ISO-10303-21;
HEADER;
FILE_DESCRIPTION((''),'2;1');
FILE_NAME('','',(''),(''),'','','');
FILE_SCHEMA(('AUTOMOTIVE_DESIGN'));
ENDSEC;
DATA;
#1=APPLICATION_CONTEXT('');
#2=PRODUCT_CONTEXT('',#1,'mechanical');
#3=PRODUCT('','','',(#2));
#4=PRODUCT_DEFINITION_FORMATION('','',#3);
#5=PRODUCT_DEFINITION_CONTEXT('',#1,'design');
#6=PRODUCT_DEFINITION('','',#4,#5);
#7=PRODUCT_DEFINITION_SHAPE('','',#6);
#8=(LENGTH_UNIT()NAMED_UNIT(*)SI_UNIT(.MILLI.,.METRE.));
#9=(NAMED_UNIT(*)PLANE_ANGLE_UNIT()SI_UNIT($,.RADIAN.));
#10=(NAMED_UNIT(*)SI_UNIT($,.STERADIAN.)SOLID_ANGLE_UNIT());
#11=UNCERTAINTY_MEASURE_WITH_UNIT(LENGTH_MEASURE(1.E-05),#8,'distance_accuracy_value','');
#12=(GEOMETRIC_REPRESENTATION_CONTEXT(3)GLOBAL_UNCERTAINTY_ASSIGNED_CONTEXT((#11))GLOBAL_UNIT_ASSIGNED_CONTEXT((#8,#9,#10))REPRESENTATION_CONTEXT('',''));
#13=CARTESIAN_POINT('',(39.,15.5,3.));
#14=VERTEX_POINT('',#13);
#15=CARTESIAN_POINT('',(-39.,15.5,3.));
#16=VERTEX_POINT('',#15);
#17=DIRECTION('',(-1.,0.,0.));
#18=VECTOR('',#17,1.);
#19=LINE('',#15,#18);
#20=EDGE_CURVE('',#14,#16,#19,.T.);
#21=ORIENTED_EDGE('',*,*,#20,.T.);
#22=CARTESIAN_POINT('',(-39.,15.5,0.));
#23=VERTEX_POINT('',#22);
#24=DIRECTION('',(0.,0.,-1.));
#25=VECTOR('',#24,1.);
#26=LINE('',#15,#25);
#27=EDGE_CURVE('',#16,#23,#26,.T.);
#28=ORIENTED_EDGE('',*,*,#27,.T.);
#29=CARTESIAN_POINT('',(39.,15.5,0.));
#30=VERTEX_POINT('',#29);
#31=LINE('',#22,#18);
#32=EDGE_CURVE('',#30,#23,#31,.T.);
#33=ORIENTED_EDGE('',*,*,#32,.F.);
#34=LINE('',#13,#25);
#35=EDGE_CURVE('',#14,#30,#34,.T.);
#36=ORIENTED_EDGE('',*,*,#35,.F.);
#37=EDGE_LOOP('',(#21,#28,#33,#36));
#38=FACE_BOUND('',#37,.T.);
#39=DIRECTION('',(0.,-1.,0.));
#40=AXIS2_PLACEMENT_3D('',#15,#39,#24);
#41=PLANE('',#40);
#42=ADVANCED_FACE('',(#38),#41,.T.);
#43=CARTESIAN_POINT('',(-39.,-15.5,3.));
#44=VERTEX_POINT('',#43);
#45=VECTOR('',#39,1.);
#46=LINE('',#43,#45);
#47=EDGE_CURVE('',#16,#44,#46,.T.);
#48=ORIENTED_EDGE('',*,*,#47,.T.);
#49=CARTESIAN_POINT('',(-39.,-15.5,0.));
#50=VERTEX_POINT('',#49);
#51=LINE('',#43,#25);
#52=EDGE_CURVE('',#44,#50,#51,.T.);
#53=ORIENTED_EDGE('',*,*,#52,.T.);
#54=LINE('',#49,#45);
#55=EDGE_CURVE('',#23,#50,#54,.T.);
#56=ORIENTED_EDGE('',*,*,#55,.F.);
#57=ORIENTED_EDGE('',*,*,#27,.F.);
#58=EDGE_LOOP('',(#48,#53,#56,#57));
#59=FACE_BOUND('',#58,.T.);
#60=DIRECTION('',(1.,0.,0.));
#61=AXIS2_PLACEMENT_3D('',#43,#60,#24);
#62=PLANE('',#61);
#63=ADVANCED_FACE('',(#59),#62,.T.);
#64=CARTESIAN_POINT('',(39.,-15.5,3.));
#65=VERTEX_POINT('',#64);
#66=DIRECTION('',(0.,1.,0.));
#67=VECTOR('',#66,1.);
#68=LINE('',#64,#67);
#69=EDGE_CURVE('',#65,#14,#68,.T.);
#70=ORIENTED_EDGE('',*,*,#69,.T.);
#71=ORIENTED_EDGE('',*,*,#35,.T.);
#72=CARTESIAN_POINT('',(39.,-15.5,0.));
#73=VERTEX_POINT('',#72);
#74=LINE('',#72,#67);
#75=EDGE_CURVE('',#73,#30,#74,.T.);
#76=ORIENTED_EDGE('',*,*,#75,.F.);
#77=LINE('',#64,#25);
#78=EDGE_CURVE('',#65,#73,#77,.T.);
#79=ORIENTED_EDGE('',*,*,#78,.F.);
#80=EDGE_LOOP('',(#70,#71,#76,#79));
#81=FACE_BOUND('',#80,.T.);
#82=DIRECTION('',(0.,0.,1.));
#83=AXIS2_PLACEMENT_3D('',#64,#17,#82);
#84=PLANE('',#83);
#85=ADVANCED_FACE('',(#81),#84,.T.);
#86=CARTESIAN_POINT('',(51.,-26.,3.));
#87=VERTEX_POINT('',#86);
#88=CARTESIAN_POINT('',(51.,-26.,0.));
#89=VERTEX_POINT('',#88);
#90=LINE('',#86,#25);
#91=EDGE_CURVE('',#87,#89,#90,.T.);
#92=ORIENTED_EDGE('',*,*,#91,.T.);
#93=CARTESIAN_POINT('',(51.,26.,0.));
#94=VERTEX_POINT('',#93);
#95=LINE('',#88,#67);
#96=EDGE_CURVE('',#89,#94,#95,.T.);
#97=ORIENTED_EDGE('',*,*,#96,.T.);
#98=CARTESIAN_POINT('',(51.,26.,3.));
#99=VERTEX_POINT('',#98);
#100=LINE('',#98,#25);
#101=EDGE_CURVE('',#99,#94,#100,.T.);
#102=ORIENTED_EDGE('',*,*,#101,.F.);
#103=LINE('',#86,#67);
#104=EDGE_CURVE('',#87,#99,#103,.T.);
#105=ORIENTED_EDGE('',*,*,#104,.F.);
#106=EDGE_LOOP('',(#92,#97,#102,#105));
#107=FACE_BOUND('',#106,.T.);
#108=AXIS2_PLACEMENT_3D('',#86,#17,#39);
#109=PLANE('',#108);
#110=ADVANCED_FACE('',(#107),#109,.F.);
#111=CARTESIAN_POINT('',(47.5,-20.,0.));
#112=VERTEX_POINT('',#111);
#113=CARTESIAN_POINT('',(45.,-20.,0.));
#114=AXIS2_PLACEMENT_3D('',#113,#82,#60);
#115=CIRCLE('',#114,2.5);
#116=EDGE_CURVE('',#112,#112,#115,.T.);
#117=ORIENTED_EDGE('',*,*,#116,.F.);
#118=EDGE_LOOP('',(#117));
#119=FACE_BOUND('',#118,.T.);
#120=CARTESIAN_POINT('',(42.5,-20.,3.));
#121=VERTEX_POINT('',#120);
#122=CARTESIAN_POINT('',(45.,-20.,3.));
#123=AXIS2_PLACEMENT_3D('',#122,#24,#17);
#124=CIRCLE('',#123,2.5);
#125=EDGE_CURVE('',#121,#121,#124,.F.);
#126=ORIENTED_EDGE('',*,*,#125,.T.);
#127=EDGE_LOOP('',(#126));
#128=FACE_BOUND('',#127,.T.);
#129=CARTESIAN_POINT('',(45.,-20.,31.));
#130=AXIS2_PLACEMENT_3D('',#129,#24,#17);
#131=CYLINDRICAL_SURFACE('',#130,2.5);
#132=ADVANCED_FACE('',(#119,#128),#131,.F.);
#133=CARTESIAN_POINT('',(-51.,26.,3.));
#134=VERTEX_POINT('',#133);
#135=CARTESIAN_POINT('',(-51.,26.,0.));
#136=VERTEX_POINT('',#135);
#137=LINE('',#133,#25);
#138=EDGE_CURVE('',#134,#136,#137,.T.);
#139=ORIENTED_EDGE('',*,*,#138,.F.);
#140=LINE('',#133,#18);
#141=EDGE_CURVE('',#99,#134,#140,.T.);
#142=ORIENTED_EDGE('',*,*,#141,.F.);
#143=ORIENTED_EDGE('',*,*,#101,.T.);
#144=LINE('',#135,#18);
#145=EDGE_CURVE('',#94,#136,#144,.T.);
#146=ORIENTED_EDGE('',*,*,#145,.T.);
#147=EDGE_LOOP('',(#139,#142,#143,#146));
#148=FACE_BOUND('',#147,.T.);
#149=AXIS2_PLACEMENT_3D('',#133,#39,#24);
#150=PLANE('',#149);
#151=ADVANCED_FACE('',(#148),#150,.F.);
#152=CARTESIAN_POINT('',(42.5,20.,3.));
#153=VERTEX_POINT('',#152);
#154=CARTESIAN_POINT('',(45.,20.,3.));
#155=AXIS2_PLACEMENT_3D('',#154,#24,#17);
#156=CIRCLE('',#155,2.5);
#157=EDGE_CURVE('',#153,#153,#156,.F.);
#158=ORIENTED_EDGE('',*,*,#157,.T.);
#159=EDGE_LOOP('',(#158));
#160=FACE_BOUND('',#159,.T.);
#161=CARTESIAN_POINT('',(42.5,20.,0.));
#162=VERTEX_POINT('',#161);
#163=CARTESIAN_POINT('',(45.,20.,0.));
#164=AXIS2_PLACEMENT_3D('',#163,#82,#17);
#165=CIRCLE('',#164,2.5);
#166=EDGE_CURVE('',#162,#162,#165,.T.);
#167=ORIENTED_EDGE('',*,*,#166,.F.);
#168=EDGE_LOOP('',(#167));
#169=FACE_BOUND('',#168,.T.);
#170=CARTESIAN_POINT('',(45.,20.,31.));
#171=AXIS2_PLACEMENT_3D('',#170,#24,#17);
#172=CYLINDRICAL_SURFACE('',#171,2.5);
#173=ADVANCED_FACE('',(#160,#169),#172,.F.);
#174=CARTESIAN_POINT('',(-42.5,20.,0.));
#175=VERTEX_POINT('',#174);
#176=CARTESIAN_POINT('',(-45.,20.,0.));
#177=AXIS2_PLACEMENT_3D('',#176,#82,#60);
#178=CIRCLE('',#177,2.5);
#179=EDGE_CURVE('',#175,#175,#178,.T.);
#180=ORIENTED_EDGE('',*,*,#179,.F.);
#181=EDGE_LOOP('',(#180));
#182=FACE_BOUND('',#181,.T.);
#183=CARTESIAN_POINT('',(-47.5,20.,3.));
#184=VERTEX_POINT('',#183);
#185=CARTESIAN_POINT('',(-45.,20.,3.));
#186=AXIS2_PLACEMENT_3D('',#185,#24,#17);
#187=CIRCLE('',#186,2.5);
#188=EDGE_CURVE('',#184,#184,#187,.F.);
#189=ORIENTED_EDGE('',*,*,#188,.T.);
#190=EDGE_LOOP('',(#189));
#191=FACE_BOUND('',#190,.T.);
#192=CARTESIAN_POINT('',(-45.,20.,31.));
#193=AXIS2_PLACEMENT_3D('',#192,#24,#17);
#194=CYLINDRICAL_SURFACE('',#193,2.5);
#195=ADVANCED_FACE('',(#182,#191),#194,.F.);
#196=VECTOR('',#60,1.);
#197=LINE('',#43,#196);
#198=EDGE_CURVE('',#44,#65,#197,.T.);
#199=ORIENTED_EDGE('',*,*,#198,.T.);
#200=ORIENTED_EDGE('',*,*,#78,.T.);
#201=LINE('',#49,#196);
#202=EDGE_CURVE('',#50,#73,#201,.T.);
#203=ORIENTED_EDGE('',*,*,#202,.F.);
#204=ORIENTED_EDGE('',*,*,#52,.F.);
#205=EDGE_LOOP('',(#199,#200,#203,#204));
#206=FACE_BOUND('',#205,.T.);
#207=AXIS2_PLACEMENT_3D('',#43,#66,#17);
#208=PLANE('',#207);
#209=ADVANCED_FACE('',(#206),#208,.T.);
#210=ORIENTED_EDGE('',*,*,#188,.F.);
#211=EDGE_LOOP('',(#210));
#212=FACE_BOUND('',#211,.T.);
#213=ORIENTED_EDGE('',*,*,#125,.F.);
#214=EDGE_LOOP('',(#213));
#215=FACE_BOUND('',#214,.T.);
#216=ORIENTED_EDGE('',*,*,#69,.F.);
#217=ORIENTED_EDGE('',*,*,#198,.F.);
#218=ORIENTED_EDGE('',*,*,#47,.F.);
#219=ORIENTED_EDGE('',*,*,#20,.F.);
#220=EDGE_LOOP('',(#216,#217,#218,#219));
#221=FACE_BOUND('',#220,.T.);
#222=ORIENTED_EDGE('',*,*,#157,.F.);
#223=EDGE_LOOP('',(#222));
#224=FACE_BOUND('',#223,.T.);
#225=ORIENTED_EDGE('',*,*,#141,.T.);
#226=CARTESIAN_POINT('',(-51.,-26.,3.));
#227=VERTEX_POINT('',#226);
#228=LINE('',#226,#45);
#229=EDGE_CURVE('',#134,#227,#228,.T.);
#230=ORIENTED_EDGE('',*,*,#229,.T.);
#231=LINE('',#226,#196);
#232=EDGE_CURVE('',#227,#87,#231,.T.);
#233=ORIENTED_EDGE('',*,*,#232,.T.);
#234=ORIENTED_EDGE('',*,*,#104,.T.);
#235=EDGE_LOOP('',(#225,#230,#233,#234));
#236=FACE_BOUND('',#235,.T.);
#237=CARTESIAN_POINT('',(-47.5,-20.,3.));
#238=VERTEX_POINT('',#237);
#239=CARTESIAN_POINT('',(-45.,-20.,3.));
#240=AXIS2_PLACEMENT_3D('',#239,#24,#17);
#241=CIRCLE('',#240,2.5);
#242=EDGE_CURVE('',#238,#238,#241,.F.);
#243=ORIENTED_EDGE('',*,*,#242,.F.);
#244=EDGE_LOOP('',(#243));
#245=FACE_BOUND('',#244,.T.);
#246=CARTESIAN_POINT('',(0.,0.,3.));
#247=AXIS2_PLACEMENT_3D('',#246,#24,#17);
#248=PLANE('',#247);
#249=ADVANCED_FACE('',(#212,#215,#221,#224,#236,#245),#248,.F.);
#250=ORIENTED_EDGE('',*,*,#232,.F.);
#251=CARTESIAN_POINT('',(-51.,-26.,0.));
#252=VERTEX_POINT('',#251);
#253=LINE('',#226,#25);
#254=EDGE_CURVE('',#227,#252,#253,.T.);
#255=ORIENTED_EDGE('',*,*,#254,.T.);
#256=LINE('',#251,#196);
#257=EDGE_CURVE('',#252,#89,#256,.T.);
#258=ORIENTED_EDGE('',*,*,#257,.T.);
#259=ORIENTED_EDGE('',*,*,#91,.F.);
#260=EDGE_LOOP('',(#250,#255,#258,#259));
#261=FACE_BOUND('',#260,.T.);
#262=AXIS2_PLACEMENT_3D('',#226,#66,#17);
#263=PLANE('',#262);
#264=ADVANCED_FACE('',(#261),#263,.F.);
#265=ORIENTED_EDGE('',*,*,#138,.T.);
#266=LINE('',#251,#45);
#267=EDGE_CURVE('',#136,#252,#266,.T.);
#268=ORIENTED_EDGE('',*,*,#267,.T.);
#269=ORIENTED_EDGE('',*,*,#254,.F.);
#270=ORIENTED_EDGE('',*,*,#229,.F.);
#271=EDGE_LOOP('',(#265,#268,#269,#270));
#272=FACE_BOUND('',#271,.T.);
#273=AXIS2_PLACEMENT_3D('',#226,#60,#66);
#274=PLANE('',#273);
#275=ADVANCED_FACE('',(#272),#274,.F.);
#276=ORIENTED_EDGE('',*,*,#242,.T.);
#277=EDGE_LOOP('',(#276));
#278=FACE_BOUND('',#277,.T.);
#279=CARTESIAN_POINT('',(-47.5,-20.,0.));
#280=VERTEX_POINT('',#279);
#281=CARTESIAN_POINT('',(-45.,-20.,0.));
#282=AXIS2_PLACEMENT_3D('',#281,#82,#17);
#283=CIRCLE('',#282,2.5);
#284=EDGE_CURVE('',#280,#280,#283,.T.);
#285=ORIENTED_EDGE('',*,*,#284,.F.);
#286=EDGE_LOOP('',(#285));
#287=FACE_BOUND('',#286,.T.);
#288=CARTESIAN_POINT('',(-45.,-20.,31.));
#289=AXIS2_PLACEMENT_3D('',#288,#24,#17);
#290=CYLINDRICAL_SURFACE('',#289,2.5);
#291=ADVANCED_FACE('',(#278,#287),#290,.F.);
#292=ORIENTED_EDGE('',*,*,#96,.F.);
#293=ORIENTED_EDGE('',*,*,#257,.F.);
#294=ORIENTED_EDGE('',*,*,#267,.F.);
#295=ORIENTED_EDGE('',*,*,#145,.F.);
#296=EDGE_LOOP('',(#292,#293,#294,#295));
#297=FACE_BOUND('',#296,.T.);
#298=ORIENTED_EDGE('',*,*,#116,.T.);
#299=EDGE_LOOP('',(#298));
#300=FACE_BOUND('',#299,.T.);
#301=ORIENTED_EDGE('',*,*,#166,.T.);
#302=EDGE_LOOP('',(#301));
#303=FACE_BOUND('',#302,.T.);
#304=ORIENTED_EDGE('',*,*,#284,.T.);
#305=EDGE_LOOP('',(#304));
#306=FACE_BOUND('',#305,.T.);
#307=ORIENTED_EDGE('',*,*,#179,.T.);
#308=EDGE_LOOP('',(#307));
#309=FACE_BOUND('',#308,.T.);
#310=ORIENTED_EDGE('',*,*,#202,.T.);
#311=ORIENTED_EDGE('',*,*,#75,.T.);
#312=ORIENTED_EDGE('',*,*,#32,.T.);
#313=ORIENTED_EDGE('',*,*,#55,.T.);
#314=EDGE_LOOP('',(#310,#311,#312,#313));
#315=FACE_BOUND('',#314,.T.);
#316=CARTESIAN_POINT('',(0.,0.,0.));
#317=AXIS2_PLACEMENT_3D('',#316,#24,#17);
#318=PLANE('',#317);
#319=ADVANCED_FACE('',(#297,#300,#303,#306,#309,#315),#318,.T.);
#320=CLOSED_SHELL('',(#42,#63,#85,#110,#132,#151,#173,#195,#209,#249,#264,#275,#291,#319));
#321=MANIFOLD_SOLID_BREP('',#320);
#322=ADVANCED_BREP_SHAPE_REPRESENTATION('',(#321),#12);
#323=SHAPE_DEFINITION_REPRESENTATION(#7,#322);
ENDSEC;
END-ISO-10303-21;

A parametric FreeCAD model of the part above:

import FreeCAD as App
import Part
import Sketcher
Q = App.Units.Quantity

doc = App.newDocument("Part")
body = doc.addObject("PartDesign::Body", "Body")

# Sketch on XY plane
sketch1 = doc.addObject("Sketcher::SketchObject", "Sketch")
body.addObject(sketch1)
sketch1.AttachmentSupport = (doc.XY_Plane, [""])
sketch1.MapMode = "FlatFace"
sketch1.addGeometry(Part.LineSegment(App.Vector(-51, 26, 0), App.Vector(-51, -26, 0)), False)
sketch1.addGeometry(Part.LineSegment(App.Vector(-51, -26, 0), App.Vector(51, -26, 0)), False)
sketch1.addGeometry(Part.LineSegment(App.Vector(51, -26, 0), App.Vector(51, 26, 0)), False)
sketch1.addGeometry(Part.LineSegment(App.Vector(51, 26, 0), App.Vector(-51, 26, 0)), False)
sketch1.addGeometry(Part.LineSegment(App.Vector(39, -15.5, 0), App.Vector(-39, -15.5, 0)), False)
sketch1.addGeometry(Part.LineSegment(App.Vector(-39, -15.5, 0), App.Vector(-39, 15.5, 0)), False)
sketch1.addGeometry(Part.LineSegment(App.Vector(-39, 15.5, 0), App.Vector(39, 15.5, 0)), False)
sketch1.addGeometry(Part.LineSegment(App.Vector(39, 15.5, 0), App.Vector(39, -15.5, 0)), False)
sketch1.addConstraint(Sketcher.Constraint("Coincident", 0, 2, 1, 1))
sketch1.addConstraint(Sketcher.Constraint("Coincident", 1, 2, 2, 1))
sketch1.addConstraint(Sketcher.Constraint("Coincident", 2, 2, 3, 1))
sketch1.addConstraint(Sketcher.Constraint("Coincident", 3, 2, 0, 1))
sketch1.addConstraint(Sketcher.Constraint("Coincident", 4, 2, 5, 1))
sketch1.addConstraint(Sketcher.Constraint("Coincident", 5, 2, 6, 1))
sketch1.addConstraint(Sketcher.Constraint("Coincident", 6, 2, 7, 1))
sketch1.addConstraint(Sketcher.Constraint("Coincident", 7, 2, 4, 1))
sketch1.addConstraint(Sketcher.Constraint("Vertical", 0))
sketch1.addConstraint(Sketcher.Constraint("Horizontal", 1))
sketch1.addConstraint(Sketcher.Constraint("Vertical", 2))
sketch1.addConstraint(Sketcher.Constraint("Horizontal", 3))
sketch1.addConstraint(Sketcher.Constraint("Horizontal", 4))
sketch1.addConstraint(Sketcher.Constraint("Vertical", 5))
sketch1.addConstraint(Sketcher.Constraint("Horizontal", 6))
sketch1.addConstraint(Sketcher.Constraint("Vertical", 7))
sketch1.addConstraint(Sketcher.Constraint("Symmetric", 0, 2, 2, 2, -1, 1))
sketch1.addConstraint(Sketcher.Constraint("Symmetric", 4, 2, 6, 2, -1, 1))
sketch1.addConstraint(Sketcher.Constraint("DistanceX", 1, 1, 1, 2, Q("102 mm")))
sketch1.addConstraint(Sketcher.Constraint("DistanceX", 4, 2, 4, 1, Q("78 mm")))
sketch1.addConstraint(Sketcher.Constraint("DistanceY", 0, 2, 0, 1, Q("52 mm")))
sketch1.addConstraint(Sketcher.Constraint("DistanceY", 5, 1, 5, 2, Q("31 mm")))
pad1 = doc.addObject("PartDesign::Pad", "Pad")
body.addObject(pad1)
pad1.Profile = sketch1
pad1.Length = 3

# Sketch on XY plane
sketch2 = doc.addObject("Sketcher::SketchObject", "Sketch001")
body.addObject(sketch2)
sketch2.AttachmentSupport = (doc.XY_Plane, [""])
sketch2.MapMode = "FlatFace"
sketch2.addGeometry(Part.Circle(App.Vector(-45, 20, 0), App.Vector(0, 0, 1), 2.5), False)
sketch2.addGeometry(Part.Circle(App.Vector(-45, -20, 0), App.Vector(0, 0, 1), 2.5), False)
sketch2.addGeometry(Part.Circle(App.Vector(45, -20, 0), App.Vector(0, 0, 1), 2.5), False)
sketch2.addGeometry(Part.Circle(App.Vector(45, 20, 0), App.Vector(0, 0, 1), 2.5), False)
sketch2.addConstraint(Sketcher.Constraint("Equal", 0, 1))
sketch2.addConstraint(Sketcher.Constraint("Equal", 1, 2))
sketch2.addConstraint(Sketcher.Constraint("Equal", 2, 3))
sketch2.addConstraint(Sketcher.Constraint("Symmetric", 0, 3, 2, 3, -1, 1))
sketch2.addConstraint(Sketcher.Constraint("Symmetric", 1, 3, 3, 3, -1, 1))
sketch2.addConstraint(Sketcher.Constraint("Symmetric", 1, 3, 2, 3, -2))
sketch2.addConstraint(Sketcher.Constraint("Diameter", 0, Q("5 mm")))
sketch2.addConstraint(Sketcher.Constraint("DistanceX", 0, 3, -1, 1, Q("45 mm")))
sketch2.addConstraint(Sketcher.Constraint("DistanceY", -1, 1, 0, 3, Q("20 mm")))
pocket1 = doc.addObject("PartDesign::Pocket", "Pocket")
body.addObject(pocket1)
pocket1.Profile = sketch2
pocket1.Length = 31
pocket1.Reversed = True

doc.recompute()
